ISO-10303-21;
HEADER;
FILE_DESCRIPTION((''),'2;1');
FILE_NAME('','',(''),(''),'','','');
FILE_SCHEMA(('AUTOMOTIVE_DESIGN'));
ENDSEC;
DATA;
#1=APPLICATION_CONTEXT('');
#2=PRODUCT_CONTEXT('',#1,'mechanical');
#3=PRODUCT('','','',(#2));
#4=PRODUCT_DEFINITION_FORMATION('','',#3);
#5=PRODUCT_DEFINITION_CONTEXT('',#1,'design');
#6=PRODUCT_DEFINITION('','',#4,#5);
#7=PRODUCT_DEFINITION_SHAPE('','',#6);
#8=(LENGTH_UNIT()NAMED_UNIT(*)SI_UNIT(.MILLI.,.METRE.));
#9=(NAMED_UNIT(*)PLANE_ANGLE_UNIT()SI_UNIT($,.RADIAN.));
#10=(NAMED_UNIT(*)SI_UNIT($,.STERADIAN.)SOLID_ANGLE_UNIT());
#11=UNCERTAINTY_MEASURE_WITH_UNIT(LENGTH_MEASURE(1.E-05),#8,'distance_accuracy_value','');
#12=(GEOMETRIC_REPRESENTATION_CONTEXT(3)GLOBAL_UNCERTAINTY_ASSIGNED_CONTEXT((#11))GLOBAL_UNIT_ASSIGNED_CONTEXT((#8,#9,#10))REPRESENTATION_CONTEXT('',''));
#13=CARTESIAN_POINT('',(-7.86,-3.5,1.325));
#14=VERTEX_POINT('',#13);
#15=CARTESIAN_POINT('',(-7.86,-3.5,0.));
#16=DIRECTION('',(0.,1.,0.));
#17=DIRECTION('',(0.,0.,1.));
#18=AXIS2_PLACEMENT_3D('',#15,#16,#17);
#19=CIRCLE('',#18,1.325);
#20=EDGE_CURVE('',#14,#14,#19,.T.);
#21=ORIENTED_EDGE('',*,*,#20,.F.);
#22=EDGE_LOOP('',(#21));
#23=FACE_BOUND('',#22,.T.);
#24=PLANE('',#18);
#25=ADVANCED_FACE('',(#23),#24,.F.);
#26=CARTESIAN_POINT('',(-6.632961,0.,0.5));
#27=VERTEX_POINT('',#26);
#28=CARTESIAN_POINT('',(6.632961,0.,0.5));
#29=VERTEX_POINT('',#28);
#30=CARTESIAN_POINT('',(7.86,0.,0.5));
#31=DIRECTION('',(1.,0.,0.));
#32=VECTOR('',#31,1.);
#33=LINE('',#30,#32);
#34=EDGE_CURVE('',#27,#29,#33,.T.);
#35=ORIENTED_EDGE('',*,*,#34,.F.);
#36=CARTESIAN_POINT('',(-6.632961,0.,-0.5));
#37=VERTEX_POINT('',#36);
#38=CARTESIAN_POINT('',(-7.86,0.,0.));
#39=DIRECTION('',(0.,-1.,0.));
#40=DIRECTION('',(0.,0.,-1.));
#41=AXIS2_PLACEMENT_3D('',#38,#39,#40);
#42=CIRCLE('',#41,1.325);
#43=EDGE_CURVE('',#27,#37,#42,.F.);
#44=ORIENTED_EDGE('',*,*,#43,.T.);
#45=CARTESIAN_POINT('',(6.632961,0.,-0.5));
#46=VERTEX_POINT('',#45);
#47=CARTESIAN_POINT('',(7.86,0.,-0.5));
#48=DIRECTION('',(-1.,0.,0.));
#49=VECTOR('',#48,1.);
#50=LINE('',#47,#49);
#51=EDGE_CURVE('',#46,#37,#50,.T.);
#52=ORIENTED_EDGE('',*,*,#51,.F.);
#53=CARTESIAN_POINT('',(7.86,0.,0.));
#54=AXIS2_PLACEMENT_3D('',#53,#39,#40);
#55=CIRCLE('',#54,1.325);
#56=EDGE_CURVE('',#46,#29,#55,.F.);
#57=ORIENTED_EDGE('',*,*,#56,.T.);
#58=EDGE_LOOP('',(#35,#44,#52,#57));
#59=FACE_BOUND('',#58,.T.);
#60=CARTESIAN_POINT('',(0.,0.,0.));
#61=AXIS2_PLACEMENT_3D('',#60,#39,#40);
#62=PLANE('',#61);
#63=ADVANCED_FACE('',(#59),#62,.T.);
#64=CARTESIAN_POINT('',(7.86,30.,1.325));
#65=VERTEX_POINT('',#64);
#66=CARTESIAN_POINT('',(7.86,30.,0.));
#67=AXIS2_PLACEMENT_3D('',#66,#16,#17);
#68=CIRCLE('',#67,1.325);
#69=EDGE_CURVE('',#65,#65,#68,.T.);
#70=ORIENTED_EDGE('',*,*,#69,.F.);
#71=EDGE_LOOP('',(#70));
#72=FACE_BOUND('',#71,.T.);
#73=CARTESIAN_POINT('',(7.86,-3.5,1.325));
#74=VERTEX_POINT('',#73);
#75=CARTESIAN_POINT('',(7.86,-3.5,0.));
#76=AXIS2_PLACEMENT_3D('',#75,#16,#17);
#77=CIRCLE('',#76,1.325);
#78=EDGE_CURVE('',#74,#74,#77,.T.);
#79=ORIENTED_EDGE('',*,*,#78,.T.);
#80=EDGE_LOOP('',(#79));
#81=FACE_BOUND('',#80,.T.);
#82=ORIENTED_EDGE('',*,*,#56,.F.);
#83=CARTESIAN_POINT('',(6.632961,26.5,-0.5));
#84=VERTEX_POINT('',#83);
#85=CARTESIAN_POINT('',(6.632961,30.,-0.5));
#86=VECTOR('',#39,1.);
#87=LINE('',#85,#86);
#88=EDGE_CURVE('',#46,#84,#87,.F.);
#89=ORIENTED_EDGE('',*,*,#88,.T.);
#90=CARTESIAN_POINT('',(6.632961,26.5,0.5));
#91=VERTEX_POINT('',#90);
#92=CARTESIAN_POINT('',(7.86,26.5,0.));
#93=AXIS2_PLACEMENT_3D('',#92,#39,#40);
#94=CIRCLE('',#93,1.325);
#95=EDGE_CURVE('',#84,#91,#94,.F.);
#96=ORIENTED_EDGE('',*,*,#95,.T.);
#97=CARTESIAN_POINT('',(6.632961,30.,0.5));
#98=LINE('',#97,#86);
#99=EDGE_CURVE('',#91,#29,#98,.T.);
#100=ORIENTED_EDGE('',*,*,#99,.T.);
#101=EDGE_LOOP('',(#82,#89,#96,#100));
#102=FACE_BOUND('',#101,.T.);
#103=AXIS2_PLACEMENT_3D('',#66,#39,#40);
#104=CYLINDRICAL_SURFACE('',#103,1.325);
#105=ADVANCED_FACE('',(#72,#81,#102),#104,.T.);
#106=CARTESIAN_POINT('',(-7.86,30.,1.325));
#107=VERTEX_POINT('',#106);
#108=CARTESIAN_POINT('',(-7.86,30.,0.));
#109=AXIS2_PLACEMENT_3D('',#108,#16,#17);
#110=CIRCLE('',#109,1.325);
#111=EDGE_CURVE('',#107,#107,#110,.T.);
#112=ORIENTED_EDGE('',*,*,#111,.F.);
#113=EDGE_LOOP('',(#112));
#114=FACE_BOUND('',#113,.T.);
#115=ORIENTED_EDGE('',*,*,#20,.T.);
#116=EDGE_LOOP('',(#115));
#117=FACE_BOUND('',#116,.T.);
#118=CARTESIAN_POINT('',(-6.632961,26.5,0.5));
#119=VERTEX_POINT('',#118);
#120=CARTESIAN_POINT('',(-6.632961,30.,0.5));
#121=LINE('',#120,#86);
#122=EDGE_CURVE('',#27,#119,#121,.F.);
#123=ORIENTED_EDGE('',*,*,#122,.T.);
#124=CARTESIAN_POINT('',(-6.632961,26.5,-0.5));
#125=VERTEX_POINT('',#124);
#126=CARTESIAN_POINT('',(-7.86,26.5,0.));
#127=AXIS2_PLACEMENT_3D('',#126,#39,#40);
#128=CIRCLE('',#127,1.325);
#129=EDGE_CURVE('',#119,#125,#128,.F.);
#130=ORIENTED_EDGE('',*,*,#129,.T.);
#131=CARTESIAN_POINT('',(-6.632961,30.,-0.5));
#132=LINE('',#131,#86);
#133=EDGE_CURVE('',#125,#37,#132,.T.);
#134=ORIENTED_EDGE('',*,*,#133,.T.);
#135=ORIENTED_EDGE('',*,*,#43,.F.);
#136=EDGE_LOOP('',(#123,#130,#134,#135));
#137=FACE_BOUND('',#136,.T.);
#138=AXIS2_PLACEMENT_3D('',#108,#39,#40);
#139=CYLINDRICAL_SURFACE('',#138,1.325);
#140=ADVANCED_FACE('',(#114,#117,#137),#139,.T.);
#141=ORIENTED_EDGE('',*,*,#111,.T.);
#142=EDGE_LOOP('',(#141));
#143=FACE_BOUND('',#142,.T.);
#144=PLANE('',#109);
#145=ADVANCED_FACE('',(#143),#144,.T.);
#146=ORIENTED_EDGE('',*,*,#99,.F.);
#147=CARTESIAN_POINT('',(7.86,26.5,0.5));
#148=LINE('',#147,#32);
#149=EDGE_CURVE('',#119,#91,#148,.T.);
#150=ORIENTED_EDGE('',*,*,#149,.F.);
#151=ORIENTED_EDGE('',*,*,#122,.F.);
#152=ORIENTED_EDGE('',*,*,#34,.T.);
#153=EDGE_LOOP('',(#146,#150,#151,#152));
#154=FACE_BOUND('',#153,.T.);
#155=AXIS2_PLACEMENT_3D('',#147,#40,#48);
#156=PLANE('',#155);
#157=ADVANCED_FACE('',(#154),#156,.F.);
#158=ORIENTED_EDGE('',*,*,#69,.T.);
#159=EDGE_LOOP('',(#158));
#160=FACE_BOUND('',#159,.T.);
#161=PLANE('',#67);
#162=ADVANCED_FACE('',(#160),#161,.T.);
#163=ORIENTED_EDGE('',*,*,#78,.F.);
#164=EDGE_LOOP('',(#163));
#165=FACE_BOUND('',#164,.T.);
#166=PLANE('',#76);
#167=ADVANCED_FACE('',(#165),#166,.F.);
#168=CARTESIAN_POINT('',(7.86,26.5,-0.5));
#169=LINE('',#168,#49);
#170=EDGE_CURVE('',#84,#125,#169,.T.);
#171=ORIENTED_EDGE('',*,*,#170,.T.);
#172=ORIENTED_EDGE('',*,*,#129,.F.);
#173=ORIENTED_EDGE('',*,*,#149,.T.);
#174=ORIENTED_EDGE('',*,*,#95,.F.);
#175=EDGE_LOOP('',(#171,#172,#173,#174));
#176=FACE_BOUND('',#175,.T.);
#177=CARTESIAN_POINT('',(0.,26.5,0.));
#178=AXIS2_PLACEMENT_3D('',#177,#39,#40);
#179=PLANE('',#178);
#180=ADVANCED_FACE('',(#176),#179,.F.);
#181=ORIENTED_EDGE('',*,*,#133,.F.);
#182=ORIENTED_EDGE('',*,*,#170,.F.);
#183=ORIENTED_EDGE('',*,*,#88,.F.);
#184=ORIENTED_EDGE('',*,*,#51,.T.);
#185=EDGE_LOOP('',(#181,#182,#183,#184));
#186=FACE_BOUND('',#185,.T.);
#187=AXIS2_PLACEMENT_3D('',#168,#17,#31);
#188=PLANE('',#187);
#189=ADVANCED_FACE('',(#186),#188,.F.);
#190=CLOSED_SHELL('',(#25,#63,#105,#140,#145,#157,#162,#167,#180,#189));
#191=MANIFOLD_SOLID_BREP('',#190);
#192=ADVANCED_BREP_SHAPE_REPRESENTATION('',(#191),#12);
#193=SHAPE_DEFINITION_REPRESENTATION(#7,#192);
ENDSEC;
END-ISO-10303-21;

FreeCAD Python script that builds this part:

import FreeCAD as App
import Part
import Sketcher
from FreeCAD import Vector
Q = App.Units.Quantity

doc = App.newDocument("Part")
body = doc.addObject("PartDesign::Body", "Body")

# Sketch on XZ plane
sketch1 = body.newObject("Sketcher::SketchObject", "Sketch")
sketch1.AttachmentSupport = (doc.getObject("XZ_Plane"), [""])
sketch1.MapMode = "FlatFace"
sketch1.addGeometry(Part.LineSegment(Vector(-7.9, -0.5, 0), Vector(-7.9, 0.5, 0)), False)
sketch1.addGeometry(Part.LineSegment(Vector(-7.9, 0.5, 0), Vector(7.9, 0.5, 0)), False)
sketch1.addGeometry(Part.LineSegment(Vector(7.9, 0.5, 0), Vector(7.9, -0.5, 0)), False)
sketch1.addGeometry(Part.LineSegment(Vector(7.9, -0.5, 0), Vector(-7.9, -0.5, 0)), False)
sketch1.addConstraint(Sketcher.Constraint("Coincident", 0, 2, 1, 1))
sketch1.addConstraint(Sketcher.Constraint("Coincident", 1, 2, 2, 1))
sketch1.addConstraint(Sketcher.Constraint("Coincident", 2, 2, 3, 1))
sketch1.addConstraint(Sketcher.Constraint("Coincident", 3, 2, 0, 1))
sketch1.addConstraint(Sketcher.Constraint("Vertical", 0))
sketch1.addConstraint(Sketcher.Constraint("Horizontal", 1))
sketch1.addConstraint(Sketcher.Constraint("Vertical", 2))
sketch1.addConstraint(Sketcher.Constraint("Horizontal", 3))
sketch1.addConstraint(Sketcher.Constraint("Symmetric", 0, 2, 2, 2, -1, 1))
sketch1.addConstraint(Sketcher.Constraint("DistanceY", 0, 1, 0, 2, Q("1 mm")))
sketch1.addConstraint(Sketcher.Constraint("DistanceX", 1, 1, 1, 2, Q("15.72 mm")))
pad1 = body.newObject("PartDesign::Pad", "Pad")
pad1.Profile = sketch1
pad1.Length = 26.5
pad1.Reversed = True

# Sketch on XZ plane
sketch2 = body.newObject("Sketcher::SketchObject", "Sketch001")
sketch2.AttachmentSupport = (doc.getObject("XZ_Plane"), [""])
sketch2.MapMode = "FlatFace"
sketch2.AttachmentOffset = App.Placement(Vector(0, 0, -13.25), App.Rotation())
sketch2.addGeometry(Part.Circle(Vector(-7.9, 0, 0), Vector(0, 0, 1), 1.3), False)
sketch2.addGeometry(Part.Circle(Vector(7.9, 0, 0), Vector(0, 0, 1), 1.3), False)
sketch2.addConstraint(Sketcher.Constraint("Equal", 0, 1))
sketch2.addConstraint(Sketcher.Constraint("Symmetric", 0, 3, 1, 3, -1, 1))
sketch2.addConstraint(Sketcher.Constraint("PointOnObject", 0, 3, -1))
sketch2.addConstraint(Sketcher.Constraint("Diameter", 0, Q("2.65 mm")))
sketch2.addConstraint(Sketcher.Constraint("DistanceX", 0, 3, -1, 1, Q("7.86 mm")))
pad2 = body.newObject("PartDesign::Pad", "Pad001")
pad2.Profile = sketch2
pad2.Length = 33.5
pad2.Midplane = True

doc.recompute()
